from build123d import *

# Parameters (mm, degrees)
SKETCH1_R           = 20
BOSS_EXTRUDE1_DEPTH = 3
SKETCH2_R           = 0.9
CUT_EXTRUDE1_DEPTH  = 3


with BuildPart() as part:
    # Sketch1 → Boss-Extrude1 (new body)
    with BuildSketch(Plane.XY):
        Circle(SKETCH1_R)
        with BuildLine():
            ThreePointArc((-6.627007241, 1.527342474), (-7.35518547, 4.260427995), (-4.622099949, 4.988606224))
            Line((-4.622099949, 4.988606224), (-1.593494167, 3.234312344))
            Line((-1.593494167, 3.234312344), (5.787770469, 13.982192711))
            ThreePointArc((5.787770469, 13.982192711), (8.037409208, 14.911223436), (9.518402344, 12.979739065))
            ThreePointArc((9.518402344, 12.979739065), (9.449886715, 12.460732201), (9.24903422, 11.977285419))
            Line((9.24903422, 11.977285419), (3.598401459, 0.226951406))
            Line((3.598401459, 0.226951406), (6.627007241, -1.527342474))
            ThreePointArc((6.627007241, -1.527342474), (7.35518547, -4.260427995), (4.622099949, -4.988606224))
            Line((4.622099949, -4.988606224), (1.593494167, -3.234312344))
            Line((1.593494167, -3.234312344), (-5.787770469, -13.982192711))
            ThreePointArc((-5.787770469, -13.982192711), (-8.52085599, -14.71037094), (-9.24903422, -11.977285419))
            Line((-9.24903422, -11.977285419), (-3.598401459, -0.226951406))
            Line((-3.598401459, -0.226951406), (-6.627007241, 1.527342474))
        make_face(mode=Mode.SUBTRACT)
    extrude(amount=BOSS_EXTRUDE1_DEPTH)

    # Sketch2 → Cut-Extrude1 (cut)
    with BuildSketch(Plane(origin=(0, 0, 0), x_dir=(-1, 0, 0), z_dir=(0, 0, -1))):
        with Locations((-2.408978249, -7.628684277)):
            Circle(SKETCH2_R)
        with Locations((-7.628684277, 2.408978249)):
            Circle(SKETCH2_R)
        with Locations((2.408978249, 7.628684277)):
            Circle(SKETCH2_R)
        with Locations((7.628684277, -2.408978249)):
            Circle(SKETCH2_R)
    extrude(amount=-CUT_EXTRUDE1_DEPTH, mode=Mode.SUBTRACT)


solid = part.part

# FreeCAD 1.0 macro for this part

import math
import FreeCAD as App
import Part
import Sketcher

V = App.Vector

doc = App.newDocument("Part")
body = doc.addObject("PartDesign::Body", "Body")

# Sketch on XY plane
sketch1 = body.newObject("Sketcher::SketchObject", "Sketch")
sketch1.AttachmentSupport = (doc.getObject("XY_Plane"), [""])
sketch1.MapMode = "FlatFace"
sketch1.addGeometry(Part.Circle(V(0, 0, 0), V(0, 0, 1), 20), False)
sketch1.addGeometry(Part.LineSegment(V(-3.6, -0.2, 0), V(-6.6, 1.5, 0)), False)
sketch1.addGeometry(Part.ArcOfCircle(Part.Circle(V(-5.6, 3.3, 0), V(0, 0, 1), 2), math.radians(60), math.radians(240)), False)
sketch1.addGeometry(Part.LineSegment(V(-4.6, 5, 0), V(-1.6, 3.2, 0)), False)
sketch1.addGeometry(Part.LineSegment(V(-1.6, 3.2, 0), V(5.8, 14, 0)), False)
sketch1.addGeometry(Part.ArcOfCircle(Part.Circle(V(7.5, 13, 0), V(0, 0, 1), 2), math.radians(0), math.radians(150)), False)
sketch1.addGeometry(Part.ArcOfCircle(Part.Circle(V(7.5, 13, 0), V(0, 0, 1), 2), math.radians(-30), math.radians(0)), False)
sketch1.addGeometry(Part.LineSegment(V(9.2, 12, 0), V(3.6, 0.2, 0)), False)
sketch1.addGeometry(Part.LineSegment(V(3.6, 0.2, 0), V(6.6, -1.5, 0)), False)
sketch1.addGeometry(Part.ArcOfCircle(Part.Circle(V(5.6, -3.3, 0), V(0, 0, 1), 2), math.radians(-120), math.radians(60)), False)
sketch1.addGeometry(Part.LineSegment(V(4.6, -5, 0), V(1.6, -3.2, 0)), False)
sketch1.addGeometry(Part.LineSegment(V(1.6, -3.2, 0), V(-5.8, -14, 0)), False)
sketch1.addGeometry(Part.ArcOfCircle(Part.Circle(V(-7.5, -13, 0), V(0, 0, 1), 2), math.radians(150), math.radians(330)), False)
sketch1.addGeometry(Part.LineSegment(V(-9.2, -12, 0), V(-3.6, -0.2, 0)), False)
sketch1.addConstraint(Sketcher.Constraint("Tangent", 1, 2, 2, 2))
sketch1.addConstraint(Sketcher.Constraint("Tangent", 2, 1, 3, 1))
sketch1.addConstraint(Sketcher.Constraint("Coincident", 3, 2, 4, 1))
sketch1.addConstraint(Sketcher.Constraint("Coincident", 4, 2, 5, 2))
sketch1.addConstraint(Sketcher.Constraint("Tangent", 5, 1, 6, 2))
sketch1.addConstraint(Sketcher.Constraint("Coincident", 6, 1, 7, 1))
sketch1.addConstraint(Sketcher.Constraint("Coincident", 7, 2, 8, 1))
sketch1.addConstraint(Sketcher.Constraint("Tangent", 8, 2, 9, 2))
sketch1.addConstraint(Sketcher.Constraint("Tangent", 9, 1, 10, 1))
sketch1.addConstraint(Sketcher.Constraint("Coincident", 10, 2, 11, 1))
sketch1.addConstraint(Sketcher.Constraint("Coincident", 11, 2, 12, 2))
sketch1.addConstraint(Sketcher.Constraint("Coincident", 12, 1, 13, 1))
sketch1.addConstraint(Sketcher.Constraint("Coincident", 13, 2, 1, 1))
sketch1.addConstraint(Sketcher.Constraint("Coincident", 0, 3, -1, 1))
sketch1.addConstraint(Sketcher.Constraint("Equal", 2, 5))
sketch1.addConstraint(Sketcher.Constraint("Equal", 5, 6))
sketch1.addConstraint(Sketcher.Constraint("Equal", 6, 9))
sketch1.addConstraint(Sketcher.Constraint("Equal", 9, 12))
sketch1.addConstraint(Sketcher.Constraint("Symmetric", 2, 3, 9, 3, -1, 1))
sketch1.addConstraint(Sketcher.Constraint("Symmetric", 5, 3, 12, 3, -1, 1))
sketch1.addConstraint(Sketcher.Constraint("Symmetric", 3, 2, 10, 2, -1, 1))
sketch1.addConstraint(Sketcher.Constraint("Symmetric", 7, 2, 13, 2, -1, 1))
sketch1.addConstraint(Sketcher.Constraint("Parallel", 1, 3))
sketch1.addConstraint(Sketcher.Constraint("Parallel", 4, 11))
sketch1.addConstraint(Sketcher.Constraint("Parallel", 7, 13))
sketch1.addConstraint(Sketcher.Constraint("Horizontal", 6, 3, 5, 1))
sketch1.addConstraint(Sketcher.Constraint("Equal", 1, 3))
sketch1.addConstraint(Sketcher.Constraint("Equal", 4, 7))
sketch1.addConstraint(Sketcher.Constraint("Diameter", 0, 40.0))
sketch1.addConstraint(Sketcher.Constraint("Radius", 2, 2.0))
sketch1.addConstraint(Sketcher.Constraint("Distance", 1, 3.5))
sketch1.addConstraint(Sketcher.Constraint("DistanceX", 2, 1, -1, 1, 4.6221))
sketch1.addConstraint(Sketcher.Constraint("DistanceX", -1, 1, 7, 2, 3.598401))
sketch1.addConstraint(Sketcher.Constraint("DistanceY", -1, 1, 5, 3, 12.979739))
sketch1.addConstraint(Sketcher.Constraint("DistanceX", -1, 1, 4, 2, 5.78777))
sketch1.addConstraint(Sketcher.Constraint("DistanceY", -1, 1, 7, 2, 0.226951))
sketch1.addConstraint(Sketcher.Constraint("DistanceX", 9, 3, 5, 3, 1.893849))
pad1 = body.newObject("PartDesign::Pad", "Pad")
pad1.Profile = sketch1
pad1.Length = 3

# Sketch on XY plane
sketch2 = body.newObject("Sketcher::SketchObject", "Sketch001")
sketch2.AttachmentSupport = (doc.getObject("XY_Plane"), [""])
sketch2.MapMode = "FlatFace"
sketch2.addGeometry(Part.Circle(V(2.4, -7.6, 0), V(0, 0, 1), 0.9), False)
sketch2.addGeometry(Part.Circle(V(7.6, 2.4, 0), V(0, 0, 1), 0.9), False)
sketch2.addGeometry(Part.Circle(V(-2.4, 7.6, 0), V(0, 0, 1), 0.9), False)
sketch2.addGeometry(Part.Circle(V(-7.6, -2.4, 0), V(0, 0, 1), 0.9), False)
sketch2.addConstraint(Sketcher.Constraint("Equal", 0, 1))
sketch2.addConstraint(Sketcher.Constraint("Equal", 1, 2))
sketch2.addConstraint(Sketcher.Constraint("Equal", 2, 3))
sketch2.addConstraint(Sketcher.Constraint("Symmetric", 0, 3, 2, 3, -1, 1))
sketch2.addConstraint(Sketcher.Constraint("Symmetric", 1, 3, 3, 3, -1, 1))
sketch2.addConstraint(Sketcher.Constraint("Diameter", 0, 1.8))
sketch2.addConstraint(Sketcher.Constraint("DistanceX", -1, 1, 0, 3, 2.408978))
sketch2.addConstraint(Sketcher.Constraint("DistanceY", -1, 1, 1, 3, 2.408978))
sketch2.addConstraint(Sketcher.Constraint("DistanceY", 0, 3, 2, 3, 15.257369))
sketch2.addConstraint(Sketcher.Constraint("DistanceX", 3, 3, 1, 3, 15.257369))
pocket1 = body.newObject("PartDesign::Pocket", "Pocket")
pocket1.Profile = sketch2
pocket1.Length = 3
pocket1.Reversed = True

doc.recompute()
